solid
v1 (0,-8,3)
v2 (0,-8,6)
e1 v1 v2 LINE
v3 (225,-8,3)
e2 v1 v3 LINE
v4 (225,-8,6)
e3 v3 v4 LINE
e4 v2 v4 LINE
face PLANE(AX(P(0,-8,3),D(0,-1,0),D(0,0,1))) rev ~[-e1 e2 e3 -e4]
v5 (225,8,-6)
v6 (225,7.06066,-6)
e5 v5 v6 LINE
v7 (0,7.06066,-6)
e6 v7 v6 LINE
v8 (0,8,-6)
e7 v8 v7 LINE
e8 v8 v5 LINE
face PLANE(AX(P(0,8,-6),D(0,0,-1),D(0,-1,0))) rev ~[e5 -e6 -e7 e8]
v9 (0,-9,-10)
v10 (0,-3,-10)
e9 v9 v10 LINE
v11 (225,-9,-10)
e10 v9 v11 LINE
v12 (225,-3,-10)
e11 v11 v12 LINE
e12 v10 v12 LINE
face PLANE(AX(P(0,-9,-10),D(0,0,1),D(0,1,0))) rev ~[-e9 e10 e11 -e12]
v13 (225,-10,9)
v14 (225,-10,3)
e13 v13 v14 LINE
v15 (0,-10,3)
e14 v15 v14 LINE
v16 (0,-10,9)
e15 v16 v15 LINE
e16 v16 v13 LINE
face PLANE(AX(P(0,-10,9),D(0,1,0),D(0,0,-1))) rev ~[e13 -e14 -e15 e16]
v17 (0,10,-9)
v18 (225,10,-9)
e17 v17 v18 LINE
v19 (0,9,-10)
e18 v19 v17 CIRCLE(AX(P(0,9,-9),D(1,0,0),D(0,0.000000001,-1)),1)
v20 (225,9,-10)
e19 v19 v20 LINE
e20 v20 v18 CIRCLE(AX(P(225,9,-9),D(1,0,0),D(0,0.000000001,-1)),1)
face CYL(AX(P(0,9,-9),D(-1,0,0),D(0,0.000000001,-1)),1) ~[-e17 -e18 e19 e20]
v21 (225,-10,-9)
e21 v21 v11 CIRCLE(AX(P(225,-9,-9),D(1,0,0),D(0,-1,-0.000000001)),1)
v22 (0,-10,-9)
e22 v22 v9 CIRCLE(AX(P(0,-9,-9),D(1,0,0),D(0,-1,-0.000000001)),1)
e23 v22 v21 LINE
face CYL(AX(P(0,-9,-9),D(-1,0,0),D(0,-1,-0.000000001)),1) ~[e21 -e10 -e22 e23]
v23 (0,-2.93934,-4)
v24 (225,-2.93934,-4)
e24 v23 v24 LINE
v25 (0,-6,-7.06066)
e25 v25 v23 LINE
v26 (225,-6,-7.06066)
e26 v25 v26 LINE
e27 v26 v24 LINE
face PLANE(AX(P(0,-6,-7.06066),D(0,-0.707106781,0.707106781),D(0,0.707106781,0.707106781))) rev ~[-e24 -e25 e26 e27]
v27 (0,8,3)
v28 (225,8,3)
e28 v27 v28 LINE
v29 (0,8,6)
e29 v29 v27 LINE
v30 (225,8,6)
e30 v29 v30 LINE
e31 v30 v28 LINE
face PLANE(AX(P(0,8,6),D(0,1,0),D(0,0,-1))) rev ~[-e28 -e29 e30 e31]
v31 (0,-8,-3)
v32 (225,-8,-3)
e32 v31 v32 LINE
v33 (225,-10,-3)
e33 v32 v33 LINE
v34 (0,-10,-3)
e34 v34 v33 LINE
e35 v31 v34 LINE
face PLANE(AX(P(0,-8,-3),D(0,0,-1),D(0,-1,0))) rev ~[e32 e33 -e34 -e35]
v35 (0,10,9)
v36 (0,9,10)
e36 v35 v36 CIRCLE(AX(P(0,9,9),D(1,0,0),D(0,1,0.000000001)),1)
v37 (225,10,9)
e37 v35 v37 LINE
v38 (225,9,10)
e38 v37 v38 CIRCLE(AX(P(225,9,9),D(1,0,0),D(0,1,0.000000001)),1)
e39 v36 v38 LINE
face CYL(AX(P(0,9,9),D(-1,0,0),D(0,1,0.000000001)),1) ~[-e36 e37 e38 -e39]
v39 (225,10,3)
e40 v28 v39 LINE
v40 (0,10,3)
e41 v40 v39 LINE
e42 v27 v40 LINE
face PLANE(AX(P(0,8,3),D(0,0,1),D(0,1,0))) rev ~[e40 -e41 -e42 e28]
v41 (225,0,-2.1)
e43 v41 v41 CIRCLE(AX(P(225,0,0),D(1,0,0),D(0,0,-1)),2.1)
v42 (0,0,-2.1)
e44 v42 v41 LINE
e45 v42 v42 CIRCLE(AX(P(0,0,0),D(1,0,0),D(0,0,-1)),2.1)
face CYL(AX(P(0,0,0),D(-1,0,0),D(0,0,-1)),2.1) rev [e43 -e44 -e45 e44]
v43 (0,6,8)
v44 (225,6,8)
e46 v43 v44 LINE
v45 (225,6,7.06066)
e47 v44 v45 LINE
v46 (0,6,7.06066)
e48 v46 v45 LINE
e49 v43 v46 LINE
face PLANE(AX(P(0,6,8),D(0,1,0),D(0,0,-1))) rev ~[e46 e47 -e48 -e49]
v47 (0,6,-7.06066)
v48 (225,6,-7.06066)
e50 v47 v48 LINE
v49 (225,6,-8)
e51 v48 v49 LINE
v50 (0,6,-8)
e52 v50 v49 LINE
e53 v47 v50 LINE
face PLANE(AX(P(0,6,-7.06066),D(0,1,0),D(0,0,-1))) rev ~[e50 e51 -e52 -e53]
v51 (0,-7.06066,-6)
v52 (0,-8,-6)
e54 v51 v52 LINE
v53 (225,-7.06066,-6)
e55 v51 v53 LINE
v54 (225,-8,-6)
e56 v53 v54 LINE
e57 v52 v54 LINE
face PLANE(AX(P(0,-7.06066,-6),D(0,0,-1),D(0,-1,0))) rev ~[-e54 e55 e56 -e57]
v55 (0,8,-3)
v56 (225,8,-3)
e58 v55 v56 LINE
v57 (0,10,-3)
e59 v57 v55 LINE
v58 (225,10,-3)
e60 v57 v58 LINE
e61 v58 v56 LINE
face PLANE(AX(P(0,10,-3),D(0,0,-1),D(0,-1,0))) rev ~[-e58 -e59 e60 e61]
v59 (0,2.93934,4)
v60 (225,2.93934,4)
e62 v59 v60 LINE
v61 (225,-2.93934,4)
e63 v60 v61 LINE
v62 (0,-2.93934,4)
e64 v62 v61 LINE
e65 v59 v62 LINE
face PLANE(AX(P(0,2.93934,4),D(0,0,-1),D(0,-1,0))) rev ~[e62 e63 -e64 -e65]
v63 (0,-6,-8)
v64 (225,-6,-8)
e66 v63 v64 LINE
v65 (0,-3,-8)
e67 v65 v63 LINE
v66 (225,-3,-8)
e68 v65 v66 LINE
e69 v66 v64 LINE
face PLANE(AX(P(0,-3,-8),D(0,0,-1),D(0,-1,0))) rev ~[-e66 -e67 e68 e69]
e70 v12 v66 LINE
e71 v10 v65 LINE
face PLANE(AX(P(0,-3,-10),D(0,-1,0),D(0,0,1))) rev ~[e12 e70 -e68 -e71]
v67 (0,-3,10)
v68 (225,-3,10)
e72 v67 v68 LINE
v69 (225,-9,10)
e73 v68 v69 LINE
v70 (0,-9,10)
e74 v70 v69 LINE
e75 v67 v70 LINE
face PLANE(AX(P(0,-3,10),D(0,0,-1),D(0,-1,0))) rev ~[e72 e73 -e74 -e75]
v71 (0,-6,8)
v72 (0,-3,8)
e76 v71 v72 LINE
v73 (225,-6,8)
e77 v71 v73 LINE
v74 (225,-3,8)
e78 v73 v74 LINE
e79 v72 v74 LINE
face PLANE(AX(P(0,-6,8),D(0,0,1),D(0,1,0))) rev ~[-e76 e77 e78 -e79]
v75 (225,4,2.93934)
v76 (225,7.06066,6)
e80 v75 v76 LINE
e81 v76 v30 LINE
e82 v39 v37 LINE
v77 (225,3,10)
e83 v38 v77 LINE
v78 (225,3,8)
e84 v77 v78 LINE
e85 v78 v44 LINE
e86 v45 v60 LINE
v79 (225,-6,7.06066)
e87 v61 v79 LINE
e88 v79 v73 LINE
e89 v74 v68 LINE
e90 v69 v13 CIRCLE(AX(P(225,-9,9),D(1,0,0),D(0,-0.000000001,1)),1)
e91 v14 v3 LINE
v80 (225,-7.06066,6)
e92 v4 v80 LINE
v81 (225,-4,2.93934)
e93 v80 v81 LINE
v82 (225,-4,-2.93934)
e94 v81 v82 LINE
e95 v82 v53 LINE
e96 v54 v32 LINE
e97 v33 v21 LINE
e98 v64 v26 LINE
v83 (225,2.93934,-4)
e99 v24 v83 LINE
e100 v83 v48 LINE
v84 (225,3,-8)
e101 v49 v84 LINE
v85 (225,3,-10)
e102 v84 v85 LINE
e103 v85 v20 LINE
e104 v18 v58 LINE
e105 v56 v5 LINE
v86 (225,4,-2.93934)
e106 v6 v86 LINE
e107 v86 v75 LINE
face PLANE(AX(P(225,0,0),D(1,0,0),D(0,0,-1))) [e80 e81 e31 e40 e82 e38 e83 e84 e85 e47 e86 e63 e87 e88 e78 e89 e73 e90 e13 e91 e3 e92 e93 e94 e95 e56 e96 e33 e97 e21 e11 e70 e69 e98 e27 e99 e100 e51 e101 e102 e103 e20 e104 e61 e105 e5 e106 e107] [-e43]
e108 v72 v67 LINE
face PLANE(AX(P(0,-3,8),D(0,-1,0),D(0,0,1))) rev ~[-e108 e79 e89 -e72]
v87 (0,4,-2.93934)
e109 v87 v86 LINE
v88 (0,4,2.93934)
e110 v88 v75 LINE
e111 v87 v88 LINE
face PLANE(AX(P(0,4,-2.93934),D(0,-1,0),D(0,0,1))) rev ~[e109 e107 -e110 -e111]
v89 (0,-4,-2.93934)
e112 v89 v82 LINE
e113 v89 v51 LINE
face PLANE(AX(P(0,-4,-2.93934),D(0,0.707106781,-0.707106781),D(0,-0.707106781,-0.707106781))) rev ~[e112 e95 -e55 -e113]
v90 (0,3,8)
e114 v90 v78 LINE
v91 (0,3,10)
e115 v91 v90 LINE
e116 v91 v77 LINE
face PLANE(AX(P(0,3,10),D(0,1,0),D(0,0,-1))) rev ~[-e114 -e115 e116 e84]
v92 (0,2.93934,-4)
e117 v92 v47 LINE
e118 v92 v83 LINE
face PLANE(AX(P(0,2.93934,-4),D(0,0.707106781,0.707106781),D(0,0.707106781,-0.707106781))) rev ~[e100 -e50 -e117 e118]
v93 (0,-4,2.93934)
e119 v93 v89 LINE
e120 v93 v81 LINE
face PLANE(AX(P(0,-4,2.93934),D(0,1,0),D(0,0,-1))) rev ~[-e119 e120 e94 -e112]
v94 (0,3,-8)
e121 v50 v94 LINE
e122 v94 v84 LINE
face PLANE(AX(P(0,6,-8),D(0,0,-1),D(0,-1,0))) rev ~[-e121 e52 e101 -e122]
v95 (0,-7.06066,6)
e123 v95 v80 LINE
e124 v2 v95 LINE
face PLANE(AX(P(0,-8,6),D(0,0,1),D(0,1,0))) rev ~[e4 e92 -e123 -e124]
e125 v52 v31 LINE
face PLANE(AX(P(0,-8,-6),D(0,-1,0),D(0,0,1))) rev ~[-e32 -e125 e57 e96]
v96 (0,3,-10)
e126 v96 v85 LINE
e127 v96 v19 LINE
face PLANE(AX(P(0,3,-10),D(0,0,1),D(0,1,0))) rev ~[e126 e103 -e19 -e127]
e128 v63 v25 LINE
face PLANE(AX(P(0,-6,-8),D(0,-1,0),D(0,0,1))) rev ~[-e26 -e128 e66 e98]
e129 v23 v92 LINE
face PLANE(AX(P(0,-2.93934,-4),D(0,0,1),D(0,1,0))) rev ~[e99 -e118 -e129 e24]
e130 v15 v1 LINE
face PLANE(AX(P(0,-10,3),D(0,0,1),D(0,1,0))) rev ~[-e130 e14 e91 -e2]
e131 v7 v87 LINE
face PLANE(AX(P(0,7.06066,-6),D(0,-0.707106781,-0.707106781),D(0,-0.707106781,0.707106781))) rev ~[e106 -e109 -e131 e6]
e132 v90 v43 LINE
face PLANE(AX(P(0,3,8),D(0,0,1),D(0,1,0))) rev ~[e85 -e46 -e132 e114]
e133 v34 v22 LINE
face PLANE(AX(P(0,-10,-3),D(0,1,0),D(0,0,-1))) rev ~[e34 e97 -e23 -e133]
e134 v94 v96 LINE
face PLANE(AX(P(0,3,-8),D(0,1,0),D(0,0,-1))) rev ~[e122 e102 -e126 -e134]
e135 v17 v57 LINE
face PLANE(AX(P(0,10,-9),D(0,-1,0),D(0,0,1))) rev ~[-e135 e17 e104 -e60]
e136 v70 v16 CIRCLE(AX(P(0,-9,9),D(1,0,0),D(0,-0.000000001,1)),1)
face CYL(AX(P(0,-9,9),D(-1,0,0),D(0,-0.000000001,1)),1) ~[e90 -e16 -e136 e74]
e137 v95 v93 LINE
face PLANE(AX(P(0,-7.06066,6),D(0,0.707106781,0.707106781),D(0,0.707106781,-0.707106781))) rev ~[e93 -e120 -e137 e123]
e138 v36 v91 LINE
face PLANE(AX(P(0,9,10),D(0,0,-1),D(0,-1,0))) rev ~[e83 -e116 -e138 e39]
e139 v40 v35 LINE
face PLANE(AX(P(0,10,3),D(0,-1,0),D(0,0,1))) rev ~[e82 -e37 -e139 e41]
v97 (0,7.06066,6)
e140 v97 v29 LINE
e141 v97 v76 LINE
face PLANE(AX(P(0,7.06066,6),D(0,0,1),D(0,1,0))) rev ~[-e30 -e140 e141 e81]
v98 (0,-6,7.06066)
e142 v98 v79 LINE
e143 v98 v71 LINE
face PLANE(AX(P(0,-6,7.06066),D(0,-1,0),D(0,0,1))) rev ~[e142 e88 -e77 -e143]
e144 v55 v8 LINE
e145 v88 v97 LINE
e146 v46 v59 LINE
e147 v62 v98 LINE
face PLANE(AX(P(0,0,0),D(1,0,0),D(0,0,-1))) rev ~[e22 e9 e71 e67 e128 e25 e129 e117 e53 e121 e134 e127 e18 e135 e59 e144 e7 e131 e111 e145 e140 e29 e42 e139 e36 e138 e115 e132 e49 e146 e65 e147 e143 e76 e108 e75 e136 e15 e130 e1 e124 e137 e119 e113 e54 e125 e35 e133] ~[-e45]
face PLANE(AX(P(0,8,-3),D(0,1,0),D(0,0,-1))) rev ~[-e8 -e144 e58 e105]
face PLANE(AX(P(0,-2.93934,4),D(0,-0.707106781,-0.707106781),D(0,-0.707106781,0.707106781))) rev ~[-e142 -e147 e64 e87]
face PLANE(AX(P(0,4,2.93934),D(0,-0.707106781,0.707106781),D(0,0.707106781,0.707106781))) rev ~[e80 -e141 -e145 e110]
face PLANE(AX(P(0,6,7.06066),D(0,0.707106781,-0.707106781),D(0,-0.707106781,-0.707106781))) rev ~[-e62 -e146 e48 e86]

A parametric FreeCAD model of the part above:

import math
import FreeCAD as App
import Part
import Sketcher
from FreeCAD import Vector

doc = App.newDocument("Part")
body = doc.addObject("PartDesign::Body", "Body")

# Sketch on YZ plane
sketch1 = body.newObject("Sketcher::SketchObject", "Sketch")
sketch1.AttachmentSupport = (doc.getObject("YZ_Plane"), [""])
sketch1.MapMode = "FlatFace"
sketch1.addGeometry([
    Part.LineSegment(Vector(9, 10, 0), Vector(3, 10, 0)),  # 0
    Part.LineSegment(Vector(3, 10, 0), Vector(3, 8, 0)),  # 1
    Part.LineSegment(Vector(3, 8, 0), Vector(6, 8, 0)),  # 2
    Part.LineSegment(Vector(6, 8, 0), Vector(6, 7.1, 0)),  # 3
    Part.LineSegment(Vector(6, 7.1, 0), Vector(2.9, 4, 0)),  # 4
    Part.LineSegment(Vector(2.9, 4, 0), Vector(-2.9, 4, 0)),  # 5
    Part.LineSegment(Vector(-2.9, 4, 0), Vector(-6, 7.1, 0)),  # 6
    Part.LineSegment(Vector(-6, 7.1, 0), Vector(-6, 8, 0)),  # 7
    Part.LineSegment(Vector(-6, 8, 0), Vector(-3, 8, 0)),  # 8
    Part.LineSegment(Vector(-3, 8, 0), Vector(-3, 10, 0)),  # 9
    Part.LineSegment(Vector(-3, 10, 0), Vector(-9, 10, 0)),  # 10
    Part.ArcOfCircle(Part.Circle(Vector(-9, 9, 0), Vector(0, 0, 1), 1), math.radians(90), math.radians(180)),  # 11
    Part.LineSegment(Vector(-10, 9, 0), Vector(-10, 3, 0)),  # 12
    Part.LineSegment(Vector(-10, 3, 0), Vector(-8, 3, 0)),  # 13
    Part.LineSegment(Vector(-8, 3, 0), Vector(-8, 6, 0)),  # 14
    Part.LineSegment(Vector(-8, 6, 0), Vector(-7.1, 6, 0)),  # 15
    Part.LineSegment(Vector(-7.1, 6, 0), Vector(-4, 2.9, 0)),  # 16
    Part.LineSegment(Vector(-4, 2.9, 0), Vector(-4, -2.9, 0)),  # 17
    Part.LineSegment(Vector(-4, -2.9, 0), Vector(-7.1, -6, 0)),  # 18
    Part.LineSegment(Vector(-7.1, -6, 0), Vector(-8, -6, 0)),  # 19
    Part.LineSegment(Vector(-8, -6, 0), Vector(-8, -3, 0)),  # 20
    Part.LineSegment(Vector(-8, -3, 0), Vector(-10, -3, 0)),  # 21
    Part.LineSegment(Vector(-10, -3, 0), Vector(-10, -9, 0)),  # 22
    Part.ArcOfCircle(Part.Circle(Vector(-9, -9, 0), Vector(0, 0, 1), 1), math.radians(-180), math.radians(-90)),  # 23
    Part.LineSegment(Vector(-9, -10, 0), Vector(-3, -10, 0)),  # 24
    Part.LineSegment(Vector(-3, -10, 0), Vector(-3, -8, 0)),  # 25
    Part.LineSegment(Vector(-3, -8, 0), Vector(-6, -8, 0)),  # 26
    Part.LineSegment(Vector(-6, -8, 0), Vector(-6, -7.1, 0)),  # 27
    Part.LineSegment(Vector(-6, -7.1, 0), Vector(-2.9, -4, 0)),  # 28
    Part.LineSegment(Vector(-2.9, -4, 0), Vector(2.9, -4, 0)),  # 29
    Part.LineSegment(Vector(2.9, -4, 0), Vector(6, -7.1, 0)),  # 30
    Part.LineSegment(Vector(6, -7.1, 0), Vector(6, -8, 0)),  # 31
    Part.LineSegment(Vector(6, -8, 0), Vector(3, -8, 0)),  # 32
    Part.LineSegment(Vector(3, -8, 0), Vector(3, -10, 0)),  # 33
    Part.LineSegment(Vector(3, -10, 0), Vector(9, -10, 0)),  # 34
    Part.ArcOfCircle(Part.Circle(Vector(9, -9, 0), Vector(0, 0, 1), 1), math.radians(-90), math.radians(0)),  # 35
    Part.LineSegment(Vector(10, -9, 0), Vector(10, -3, 0)),  # 36
    Part.LineSegment(Vector(10, -3, 0), Vector(8, -3, 0)),  # 37
    Part.LineSegment(Vector(8, -3, 0), Vector(8, -6, 0)),  # 38
    Part.LineSegment(Vector(8, -6, 0), Vector(7.1, -6, 0)),  # 39
    Part.LineSegment(Vector(7.1, -6, 0), Vector(4, -2.9, 0)),  # 40
    Part.LineSegment(Vector(4, -2.9, 0), Vector(4, 2.9, 0)),  # 41
    Part.LineSegment(Vector(4, 2.9, 0), Vector(7.1, 6, 0)),  # 42
    Part.LineSegment(Vector(7.1, 6, 0), Vector(8, 6, 0)),  # 43
    Part.LineSegment(Vector(8, 6, 0), Vector(8, 3, 0)),  # 44
    Part.LineSegment(Vector(8, 3, 0), Vector(10, 3, 0)),  # 45
    Part.LineSegment(Vector(10, 3, 0), Vector(10, 9, 0)),  # 46
    Part.ArcOfCircle(Part.Circle(Vector(9, 9, 0), Vector(0, 0, 1), 1), math.radians(0), math.radians(90)),  # 47
    Part.Circle(Vector(0, 0, 0), Vector(0, 0, 1), 2.1),  # 48
], False)
sketch1.addConstraint([
    Sketcher.Constraint("Coincident", 0, 2, 1, 1),
    Sketcher.Constraint("Coincident", 1, 2, 2, 1),
    Sketcher.Constraint("Coincident", 2, 2, 3, 1),
    Sketcher.Constraint("Coincident", 3, 2, 4, 1),
    Sketcher.Constraint("Coincident", 4, 2, 5, 1),
    Sketcher.Constraint("Coincident", 5, 2, 6, 1),
    Sketcher.Constraint("Coincident", 6, 2, 7, 1),
    Sketcher.Constraint("Coincident", 7, 2, 8, 1),
    Sketcher.Constraint("Coincident", 8, 2, 9, 1),
    Sketcher.Constraint("Coincident", 9, 2, 10, 1),
    Sketcher.Constraint("Tangent", 10, 2, 11, 1),
    Sketcher.Constraint("Tangent", 11, 2, 12, 1),
    Sketcher.Constraint("Coincident", 12, 2, 13, 1),
    Sketcher.Constraint("Coincident", 13, 2, 14, 1),
    Sketcher.Constraint("Coincident", 14, 2, 15, 1),
    Sketcher.Constraint("Coincident", 15, 2, 16, 1),
    Sketcher.Constraint("Coincident", 16, 2, 17, 1),
    Sketcher.Constraint("Coincident", 17, 2, 18, 1),
    Sketcher.Constraint("Coincident", 18, 2, 19, 1),
    Sketcher.Constraint("Coincident", 19, 2, 20, 1),
    Sketcher.Constraint("Coincident", 20, 2, 21, 1),
    Sketcher.Constraint("Coincident", 21, 2, 22, 1),
    Sketcher.Constraint("Tangent", 22, 2, 23, 1),
    Sketcher.Constraint("Tangent", 23, 2, 24, 1),
    Sketcher.Constraint("Coincident", 24, 2, 25, 1),
    Sketcher.Constraint("Coincident", 25, 2, 26, 1),
    Sketcher.Constraint("Coincident", 26, 2, 27, 1),
    Sketcher.Constraint("Coincident", 27, 2, 28, 1),
    Sketcher.Constraint("Coincident", 28, 2, 29, 1),
    Sketcher.Constraint("Coincident", 29, 2, 30, 1),
    Sketcher.Constraint("Coincident", 30, 2, 31, 1),
    Sketcher.Constraint("Coincident", 31, 2, 32, 1),
    Sketcher.Constraint("Coincident", 32, 2, 33, 1),
    Sketcher.Constraint("Coincident", 33, 2, 34, 1),
    Sketcher.Constraint("Tangent", 34, 2, 35, 1),
    Sketcher.Constraint("Tangent", 35, 2, 36, 1),
    Sketcher.Constraint("Coincident", 36, 2, 37, 1),
    Sketcher.Constraint("Coincident", 37, 2, 38, 1),
    Sketcher.Constraint("Coincident", 38, 2, 39, 1),
    Sketcher.Constraint("Coincident", 39, 2, 40, 1),
    Sketcher.Constraint("Coincident", 40, 2, 41, 1),
    Sketcher.Constraint("Coincident", 41, 2, 42, 1),
    Sketcher.Constraint("Coincident", 42, 2, 43, 1),
    Sketcher.Constraint("Coincident", 43, 2, 44, 1),
    Sketcher.Constraint("Coincident", 44, 2, 45, 1),
    Sketcher.Constraint("Coincident", 45, 2, 46, 1),
    Sketcher.Constraint("Tangent", 46, 2, 47, 1),
    Sketcher.Constraint("Tangent", 47, 2, 0, 1),
    Sketcher.Constraint("Horizontal", 0),
    Sketcher.Constraint("Vertical", 1),
    Sketcher.Constraint("Horizontal", 2),
    Sketcher.Constraint("Vertical", 3),
    Sketcher.Constraint("Horizontal", 5),
    Sketcher.Constraint("Vertical", 7),
    Sketcher.Constraint("Horizontal", 8),
    Sketcher.Constraint("Vertical", 9),
    Sketcher.Constraint("Horizontal", 10),
    Sketcher.Constraint("Vertical", 12),
    Sketcher.Constraint("Horizontal", 13),
    Sketcher.Constraint("Vertical", 14),
    Sketcher.Constraint("Horizontal", 15),
    Sketcher.Constraint("Vertical", 17),
    Sketcher.Constraint("Horizontal", 19),
    Sketcher.Constraint("Vertical", 20),
    Sketcher.Constraint("Horizontal", 21),
    Sketcher.Constraint("Vertical", 22),
    Sketcher.Constraint("Horizontal", 24),
    Sketcher.Constraint("Vertical", 25),
    Sketcher.Constraint("Horizontal", 26),
    Sketcher.Constraint("Vertical", 27),
    Sketcher.Constraint("Horizontal", 29),
    Sketcher.Constraint("Vertical", 31),
    Sketcher.Constraint("Horizontal", 32),
    Sketcher.Constraint("Vertical", 33),
    Sketcher.Constraint("Horizontal", 34),
    Sketcher.Constraint("Vertical", 36),
    Sketcher.Constraint("Horizontal", 37),
    Sketcher.Constraint("Vertical", 38),
    Sketcher.Constraint("Horizontal", 39),
    Sketcher.Constraint("Vertical", 41),
    Sketcher.Constraint("Horizontal", 43),
    Sketcher.Constraint("Vertical", 44),
    Sketcher.Constraint("Horizontal", 45),
    Sketcher.Constraint("Vertical", 46),
    Sketcher.Constraint("Coincident", 48, 3, -1, 1),
    Sketcher.Constraint("Equal", 11, 23),
    Sketcher.Constraint("Equal", 23, 35),
    Sketcher.Constraint("Equal", 35, 47),
    Sketcher.Constraint("Symmetric", 11, 3, 35, 3, -1, 1),
    Sketcher.Constraint("Symmetric", 23, 3, 47, 3, -1, 1),
    Sketcher.Constraint("Symmetric", 1, 2, 25, 2, -1, 1),
    Sketcher.Constraint("Symmetric", 3, 2, 27, 2, -1, 1),
    Sketcher.Constraint("Symmetric", 4, 2, 28, 2, -1, 1),
    Sketcher.Constraint("Symmetric", 6, 2, 30, 2, -1, 1),
    Sketcher.Constraint("Symmetric", 8, 2, 32, 2, -1, 1),
    Sketcher.Constraint("Symmetric", 13, 2, 37, 2, -1, 1),
    Sketcher.Constraint("Symmetric", 15, 2, 39, 2, -1, 1),
    Sketcher.Constraint("Symmetric", 16, 2, 40, 2, -1, 1),
    Sketcher.Constraint("Symmetric", 18, 2, 42, 2, -1, 1),
    Sketcher.Constraint("Symmetric", 20, 2, 44, 2, -1, 1),
    Sketcher.Constraint("Symmetric", 23, 3, 35, 3, -2),
    Sketcher.Constraint("Symmetric", 3, 2, 6, 2, -2),
    Sketcher.Constraint("Symmetric", 1, 2, 8, 2, -2),
    Sketcher.Constraint("Symmetric", 20, 2, 37, 2, -2),
    Sketcher.Constraint("Symmetric", 18, 2, 39, 2, -2),
    Sketcher.Constraint("Perpendicular", 4, 6),
    Sketcher.Constraint("Parallel", 6, 16),
    Sketcher.Constraint("Perpendicular", 16, 18),
    Sketcher.Constraint("Perpendicular", 28, 30),
    Sketcher.Constraint("Perpendicular", 40, 42),
    Sketcher.Constraint("Horizontal", 17, 2, 40, 2),
    Sketcher.Constraint("Equal", 45, 1),
    Sketcher.Constraint("Equal", 43, 3),
    Sketcher.Constraint("Equal", 34, 12),
    Sketcher.Constraint("Equal", 32, 14),
    Sketcher.Constraint("Equal", 29, 17),
    Sketcher.Constraint("Equal", 6, 16),
    Sketcher.Constraint("Radius", 11, 1.0),
    Sketcher.Constraint("Diameter", 48, 4.2),
    Sketcher.Constraint("DistanceX", 0, 2, 0, 1, 6.0),
    Sketcher.Constraint("DistanceX", 2, 1, 2, 2, 3.0),
    Sketcher.Constraint("DistanceX", 13, 1, 13, 2, 2.0),
    Sketcher.Constraint("DistanceX", 11, 3, -1, 1, 9.0),
    Sketcher.Constraint("DistanceY", -1, 1, 4, 2, 4.0),
    Sketcher.Constraint("DistanceX", 5, 2, 5, 1, 5.87868),
])
pad1 = body.newObject("PartDesign::Pad", "Pad")
pad1.Profile = sketch1
pad1.Length = 225

doc.recompute()
